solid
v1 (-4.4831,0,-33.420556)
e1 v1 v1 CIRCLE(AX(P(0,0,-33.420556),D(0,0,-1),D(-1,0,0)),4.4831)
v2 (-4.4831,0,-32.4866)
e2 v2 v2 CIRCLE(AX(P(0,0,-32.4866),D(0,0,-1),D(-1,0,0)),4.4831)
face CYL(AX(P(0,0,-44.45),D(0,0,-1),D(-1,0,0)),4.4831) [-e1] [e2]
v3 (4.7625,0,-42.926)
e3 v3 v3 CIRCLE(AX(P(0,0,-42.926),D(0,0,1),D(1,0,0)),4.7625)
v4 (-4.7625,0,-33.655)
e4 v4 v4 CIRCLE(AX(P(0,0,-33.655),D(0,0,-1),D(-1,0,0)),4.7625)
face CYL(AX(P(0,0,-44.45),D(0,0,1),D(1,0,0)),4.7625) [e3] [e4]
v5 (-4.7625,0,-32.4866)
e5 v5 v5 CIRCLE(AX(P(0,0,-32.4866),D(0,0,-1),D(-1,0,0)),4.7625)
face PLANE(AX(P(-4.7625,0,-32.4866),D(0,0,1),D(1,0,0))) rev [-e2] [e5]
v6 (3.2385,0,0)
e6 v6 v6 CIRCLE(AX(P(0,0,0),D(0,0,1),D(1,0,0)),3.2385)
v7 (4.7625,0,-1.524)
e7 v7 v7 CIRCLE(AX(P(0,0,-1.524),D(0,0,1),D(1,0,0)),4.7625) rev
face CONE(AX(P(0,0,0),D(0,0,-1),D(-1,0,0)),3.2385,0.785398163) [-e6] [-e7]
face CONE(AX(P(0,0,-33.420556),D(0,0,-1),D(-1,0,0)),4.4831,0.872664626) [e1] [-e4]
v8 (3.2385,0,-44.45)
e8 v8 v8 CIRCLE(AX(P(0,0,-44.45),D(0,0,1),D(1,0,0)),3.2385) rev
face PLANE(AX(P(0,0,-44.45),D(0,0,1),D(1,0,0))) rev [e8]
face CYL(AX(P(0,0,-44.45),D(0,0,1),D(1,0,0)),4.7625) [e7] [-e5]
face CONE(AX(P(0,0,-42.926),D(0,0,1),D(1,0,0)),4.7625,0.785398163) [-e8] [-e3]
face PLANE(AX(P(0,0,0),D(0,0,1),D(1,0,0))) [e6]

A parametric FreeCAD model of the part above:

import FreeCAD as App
import Part
import Sketcher
from FreeCAD import Vector
Q = App.Units.Quantity


def edges_at(feature, points):
    """Names of the edges that pass closest to the given points."""
    edges = feature.Shape.Edges
    near = lambda p: min(range(len(edges)), key=lambda i: edges[i].distToShape(Part.Vertex(*p))[0])
    return sorted({f"Edge{near(p) + 1}" for p in points})


def add_polygon(sketch, points):
    """Adds a closed chain of lines whose ends are joined by coincident constraints."""
    first, n = sketch.GeometryCount, len(points)
    for a, b in zip(points, points[1:] + points[:1]):
        sketch.addGeometry(Part.LineSegment(App.Vector(*a, 0), App.Vector(*b, 0)), False)
    for i in range(n):
        sketch.addConstraint(Sketcher.Constraint("Coincident", first + i, 2, first + (i + 1) % n, 1))

doc = App.newDocument("Part")
params = doc.addObject("Spreadsheet::Sheet", "Params")
for row, (alias, value) in enumerate([
    ("sketch1_diameter", "0.375 in"),
    ("pad1_length", "1.75 in"),
    ("sketch2_width", "0.011 in"),
    ("sketch2_height", "0.046 in"),
    ("groove_angle", "360 deg"),
    ("chamfer_size", "0.06 in"),
], start=1):
    params.set(f"A{row}", alias)
    params.set(f"B{row}", "=" + value)
    params.setAlias(f"B{row}", alias)

body = doc.addObject("PartDesign::Body", "Body")

# Sketch on XY plane
sketch1 = doc.addObject("Sketcher::SketchObject", "Sketch")
body.addObject(sketch1)
sketch1.AttachmentSupport = (doc.XY_Plane, [""])
sketch1.MapMode = "FlatFace"
sketch1.addGeometry(Part.Circle(Vector(0, 0, 0), Vector(0, 0, 1), 4.7625), False)
sketch1.addConstraint([
    Sketcher.Constraint("Coincident", 0, 3, -1, 1),
    Sketcher.Constraint("Diameter", 0, Q("0.375 in")),
])
sketch1.setExpression("Constraints[1]", "Params.sketch1_diameter")
pad1 = doc.addObject("PartDesign::Pad", "Pad")
body.addObject(pad1)
pad1.Profile = sketch1
pad1.setExpression("Length", "Params.pad1_length")
pad1.Reversed = True

# Sketch on XZ plane
sketch2 = doc.addObject("Sketcher::SketchObject", "Sketch001")
body.addObject(sketch2)
sketch2.AttachmentSupport = (doc.XZ_Plane, [""])
sketch2.MapMode = "FlatFace"
add_polygon(sketch2, [(-4.7625, -33.655), (-4.7625, -32.4866), (-4.4831, -32.4866), (-4.4831, -33.420556)])  # lines 0-3
sketch2.addConstraint([
    Sketcher.Constraint("Vertical", 0),
    Sketcher.Constraint("Horizontal", 1),
    Sketcher.Constraint("Vertical", 2),
    Sketcher.Constraint("Angle", 3, Q("-140 deg")),
    Sketcher.Constraint("DistanceX", 1, 1, 1, 2, Q("0.011 in")),
    Sketcher.Constraint("DistanceY", 0, 1, 0, 2, Q("0.046 in")),
    Sketcher.Constraint("DistanceX", 0, 2, -1, 1, Q("0.1875 in")),
    Sketcher.Constraint("DistanceY", 0, 2, -1, 1, Q("1.279 in")),
])
sketch2.setExpression("Constraints[8]", "Params.sketch2_width")
sketch2.setExpression("Constraints[9]", "Params.sketch2_height")
groove = doc.addObject("PartDesign::Groove", "Groove")
body.addObject(groove)
groove.Profile = sketch2
groove.ReferenceAxis = (sketch2, ["V_Axis"])
groove.setExpression("Angle", "Params.groove_angle")
doc.recompute()

chamfer = doc.addObject("PartDesign::Chamfer", "Chamfer")
body.addObject(chamfer)
chamfer.Base = (groove, edges_at(groove, [(-4.763, 0, 0), (-4.763, 0, -44.45)]))
chamfer.setExpression("Size", "Params.chamfer_size")

doc.recompute()
